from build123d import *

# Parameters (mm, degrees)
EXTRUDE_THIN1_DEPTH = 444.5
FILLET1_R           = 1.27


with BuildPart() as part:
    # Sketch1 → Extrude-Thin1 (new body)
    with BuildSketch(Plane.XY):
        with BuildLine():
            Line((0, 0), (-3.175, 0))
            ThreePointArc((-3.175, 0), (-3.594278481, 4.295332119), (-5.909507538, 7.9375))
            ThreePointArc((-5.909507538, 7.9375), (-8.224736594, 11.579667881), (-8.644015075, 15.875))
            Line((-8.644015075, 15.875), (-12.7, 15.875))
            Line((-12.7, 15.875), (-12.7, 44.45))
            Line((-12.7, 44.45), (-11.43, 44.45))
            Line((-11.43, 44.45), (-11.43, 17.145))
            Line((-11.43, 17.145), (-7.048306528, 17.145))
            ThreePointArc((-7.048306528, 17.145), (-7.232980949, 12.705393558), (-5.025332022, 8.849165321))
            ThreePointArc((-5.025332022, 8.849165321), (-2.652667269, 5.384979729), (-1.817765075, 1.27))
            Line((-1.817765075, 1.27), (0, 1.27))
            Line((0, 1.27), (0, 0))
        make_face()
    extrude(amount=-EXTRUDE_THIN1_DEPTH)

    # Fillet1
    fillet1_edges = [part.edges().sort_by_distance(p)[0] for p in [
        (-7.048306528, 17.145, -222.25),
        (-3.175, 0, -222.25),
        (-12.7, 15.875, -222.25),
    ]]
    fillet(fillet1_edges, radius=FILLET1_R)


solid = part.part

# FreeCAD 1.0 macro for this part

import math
import FreeCAD as App
import Part
import Sketcher

V = App.Vector
Q = App.Units.Quantity


def edges_at(feature, points):
    """Names of the edges that pass closest to the given points."""
    edges = feature.Shape.Edges
    near = lambda p: min(range(len(edges)), key=lambda i: edges[i].distToShape(Part.Vertex(*p))[0])
    return sorted({f"Edge{near(p) + 1}" for p in points})

doc = App.newDocument("Part")
body = doc.addObject("PartDesign::Body", "Body")

# Sketch on XY plane
sketch1 = body.newObject("Sketcher::SketchObject", "Sketch")
sketch1.AttachmentSupport = (doc.getObject("XY_Plane"), [""])
sketch1.MapMode = "FlatFace"
sketch1.addGeometry(Part.LineSegment(V(-3.175, 0, 0), V(0, 0, 0)), False)
sketch1.addGeometry(Part.LineSegment(V(0, 0, 0), V(0, 1.27, 0)), False)
sketch1.addGeometry(Part.LineSegment(V(0, 1.27, 0), V(-1.817765, 1.27, 0)), False)
sketch1.addGeometry(Part.ArcOfCircle(Part.Circle(V(-12.37596, 1.27, 0), V(0, 0, 1), 10.558195), math.radians(0), math.radians(45.876986)), False)
sketch1.addGeometry(Part.ArcOfCircle(Part.Circle(V(0.556945, 14.605, 0), V(0, 0, 1), 8.018195), math.radians(161.531724), math.radians(225.876986)), False)
sketch1.addGeometry(Part.LineSegment(V(-7.048307, 17.145, 0), V(-11.43, 17.145, 0)), False)
sketch1.addGeometry(Part.LineSegment(V(-11.43, 17.145, 0), V(-11.43, 44.45, 0)), False)
sketch1.addGeometry(Part.LineSegment(V(-11.43, 44.45, 0), V(-12.7, 44.45, 0)), False)
sketch1.addGeometry(Part.LineSegment(V(-12.7, 44.45, 0), V(-12.7, 15.875, 0)), False)
sketch1.addGeometry(Part.LineSegment(V(-12.7, 15.875, 0), V(-8.644015, 15.875, 0)), False)
sketch1.addGeometry(Part.ArcOfCircle(Part.Circle(V(0.556945, 14.605, 0), V(0, 0, 1), 9.288195), math.radians(172.141174), math.radians(225.876986)), False)
sketch1.addGeometry(Part.ArcOfCircle(Part.Circle(V(-12.37596, 1.27, 0), V(0, 0, 1), 9.288195), math.radians(-7.858826), math.radians(45.876986)), False)
sketch1.addConstraint(Sketcher.Constraint("Coincident", 0, 2, 1, 1))
sketch1.addConstraint(Sketcher.Constraint("Coincident", 1, 2, 2, 1))
sketch1.addConstraint(Sketcher.Constraint("Coincident", 2, 2, 3, 1))
sketch1.addConstraint(Sketcher.Constraint("Tangent", 3, 2, 4, 2))
sketch1.addConstraint(Sketcher.Constraint("Coincident", 4, 1, 5, 1))
sketch1.addConstraint(Sketcher.Constraint("Coincident", 5, 2, 6, 1))
sketch1.addConstraint(Sketcher.Constraint("Coincident", 6, 2, 7, 1))
sketch1.addConstraint(Sketcher.Constraint("Coincident", 7, 2, 8, 1))
sketch1.addConstraint(Sketcher.Constraint("Coincident", 8, 2, 9, 1))
sketch1.addConstraint(Sketcher.Constraint("Coincident", 9, 2, 10, 1))
sketch1.addConstraint(Sketcher.Constraint("Tangent", 10, 2, 11, 2))
sketch1.addConstraint(Sketcher.Constraint("Coincident", 11, 1, 0, 1))
sketch1.addConstraint(Sketcher.Constraint("Horizontal", 0))
sketch1.addConstraint(Sketcher.Constraint("Vertical", 1))
sketch1.addConstraint(Sketcher.Constraint("Horizontal", 2))
sketch1.addConstraint(Sketcher.Constraint("Horizontal", 5))
sketch1.addConstraint(Sketcher.Constraint("Vertical", 6))
sketch1.addConstraint(Sketcher.Constraint("Horizontal", 7))
sketch1.addConstraint(Sketcher.Constraint("Vertical", 8))
sketch1.addConstraint(Sketcher.Constraint("Horizontal", 9))
sketch1.addConstraint(Sketcher.Constraint("Coincident", 0, 2, -1, 1))
sketch1.addConstraint(Sketcher.Constraint("Coincident", 10, 3, 4, 3))
sketch1.addConstraint(Sketcher.Constraint("Coincident", 11, 3, 3, 3))
sketch1.addConstraint(Sketcher.Constraint("Equal", 10, 11))
sketch1.addConstraint(Sketcher.Constraint("Horizontal", 11, 3, 1, 2))
sketch1.addConstraint(Sketcher.Constraint("Equal", 7, 1))
sketch1.addConstraint(Sketcher.Constraint("DistanceX", 7, 2, 7, 1, Q("0.05 in")))
sketch1.addConstraint(Sketcher.Constraint("DistanceX", 7, 2, -1, 1, Q("0.5 in")))
sketch1.addConstraint(Sketcher.Constraint("DistanceY", 4, 3, 4, 1, Q("0.1 in")))
sketch1.addConstraint(Sketcher.Constraint("DistanceX", 0, 1, 0, 2, Q("0.125 in")))
sketch1.addConstraint(Sketcher.Constraint("DistanceY", 6, 1, 6, 2, Q("1.075 in")))
sketch1.addConstraint(Sketcher.Constraint("DistanceY", 8, 2, 8, 1, Q("1.125 in")))
sketch1.addConstraint(Sketcher.Constraint("DistanceY", -1, 1, 6, 2, Q("1.75 in")))
sketch1.addConstraint(Sketcher.Constraint("Radius", 3, 10.558195))
sketch1.addConstraint(Sketcher.Constraint("Radius", 4, 8.018195))
pad1 = body.newObject("PartDesign::Pad", "Pad")
pad1.Profile = sketch1
pad1.Length = Q("17.5 in")
pad1.Reversed = True
doc.recompute()

fillet = body.newObject("PartDesign::Fillet", "Fillet")
fillet.Base = (pad1, edges_at(pad1, [(-7.048, 17.145, -222.25), (-3.175, 0, -222.25), (-12.7, 15.875, -222.25)]))
fillet.Radius = Q("0.05 in")

doc.recompute()
